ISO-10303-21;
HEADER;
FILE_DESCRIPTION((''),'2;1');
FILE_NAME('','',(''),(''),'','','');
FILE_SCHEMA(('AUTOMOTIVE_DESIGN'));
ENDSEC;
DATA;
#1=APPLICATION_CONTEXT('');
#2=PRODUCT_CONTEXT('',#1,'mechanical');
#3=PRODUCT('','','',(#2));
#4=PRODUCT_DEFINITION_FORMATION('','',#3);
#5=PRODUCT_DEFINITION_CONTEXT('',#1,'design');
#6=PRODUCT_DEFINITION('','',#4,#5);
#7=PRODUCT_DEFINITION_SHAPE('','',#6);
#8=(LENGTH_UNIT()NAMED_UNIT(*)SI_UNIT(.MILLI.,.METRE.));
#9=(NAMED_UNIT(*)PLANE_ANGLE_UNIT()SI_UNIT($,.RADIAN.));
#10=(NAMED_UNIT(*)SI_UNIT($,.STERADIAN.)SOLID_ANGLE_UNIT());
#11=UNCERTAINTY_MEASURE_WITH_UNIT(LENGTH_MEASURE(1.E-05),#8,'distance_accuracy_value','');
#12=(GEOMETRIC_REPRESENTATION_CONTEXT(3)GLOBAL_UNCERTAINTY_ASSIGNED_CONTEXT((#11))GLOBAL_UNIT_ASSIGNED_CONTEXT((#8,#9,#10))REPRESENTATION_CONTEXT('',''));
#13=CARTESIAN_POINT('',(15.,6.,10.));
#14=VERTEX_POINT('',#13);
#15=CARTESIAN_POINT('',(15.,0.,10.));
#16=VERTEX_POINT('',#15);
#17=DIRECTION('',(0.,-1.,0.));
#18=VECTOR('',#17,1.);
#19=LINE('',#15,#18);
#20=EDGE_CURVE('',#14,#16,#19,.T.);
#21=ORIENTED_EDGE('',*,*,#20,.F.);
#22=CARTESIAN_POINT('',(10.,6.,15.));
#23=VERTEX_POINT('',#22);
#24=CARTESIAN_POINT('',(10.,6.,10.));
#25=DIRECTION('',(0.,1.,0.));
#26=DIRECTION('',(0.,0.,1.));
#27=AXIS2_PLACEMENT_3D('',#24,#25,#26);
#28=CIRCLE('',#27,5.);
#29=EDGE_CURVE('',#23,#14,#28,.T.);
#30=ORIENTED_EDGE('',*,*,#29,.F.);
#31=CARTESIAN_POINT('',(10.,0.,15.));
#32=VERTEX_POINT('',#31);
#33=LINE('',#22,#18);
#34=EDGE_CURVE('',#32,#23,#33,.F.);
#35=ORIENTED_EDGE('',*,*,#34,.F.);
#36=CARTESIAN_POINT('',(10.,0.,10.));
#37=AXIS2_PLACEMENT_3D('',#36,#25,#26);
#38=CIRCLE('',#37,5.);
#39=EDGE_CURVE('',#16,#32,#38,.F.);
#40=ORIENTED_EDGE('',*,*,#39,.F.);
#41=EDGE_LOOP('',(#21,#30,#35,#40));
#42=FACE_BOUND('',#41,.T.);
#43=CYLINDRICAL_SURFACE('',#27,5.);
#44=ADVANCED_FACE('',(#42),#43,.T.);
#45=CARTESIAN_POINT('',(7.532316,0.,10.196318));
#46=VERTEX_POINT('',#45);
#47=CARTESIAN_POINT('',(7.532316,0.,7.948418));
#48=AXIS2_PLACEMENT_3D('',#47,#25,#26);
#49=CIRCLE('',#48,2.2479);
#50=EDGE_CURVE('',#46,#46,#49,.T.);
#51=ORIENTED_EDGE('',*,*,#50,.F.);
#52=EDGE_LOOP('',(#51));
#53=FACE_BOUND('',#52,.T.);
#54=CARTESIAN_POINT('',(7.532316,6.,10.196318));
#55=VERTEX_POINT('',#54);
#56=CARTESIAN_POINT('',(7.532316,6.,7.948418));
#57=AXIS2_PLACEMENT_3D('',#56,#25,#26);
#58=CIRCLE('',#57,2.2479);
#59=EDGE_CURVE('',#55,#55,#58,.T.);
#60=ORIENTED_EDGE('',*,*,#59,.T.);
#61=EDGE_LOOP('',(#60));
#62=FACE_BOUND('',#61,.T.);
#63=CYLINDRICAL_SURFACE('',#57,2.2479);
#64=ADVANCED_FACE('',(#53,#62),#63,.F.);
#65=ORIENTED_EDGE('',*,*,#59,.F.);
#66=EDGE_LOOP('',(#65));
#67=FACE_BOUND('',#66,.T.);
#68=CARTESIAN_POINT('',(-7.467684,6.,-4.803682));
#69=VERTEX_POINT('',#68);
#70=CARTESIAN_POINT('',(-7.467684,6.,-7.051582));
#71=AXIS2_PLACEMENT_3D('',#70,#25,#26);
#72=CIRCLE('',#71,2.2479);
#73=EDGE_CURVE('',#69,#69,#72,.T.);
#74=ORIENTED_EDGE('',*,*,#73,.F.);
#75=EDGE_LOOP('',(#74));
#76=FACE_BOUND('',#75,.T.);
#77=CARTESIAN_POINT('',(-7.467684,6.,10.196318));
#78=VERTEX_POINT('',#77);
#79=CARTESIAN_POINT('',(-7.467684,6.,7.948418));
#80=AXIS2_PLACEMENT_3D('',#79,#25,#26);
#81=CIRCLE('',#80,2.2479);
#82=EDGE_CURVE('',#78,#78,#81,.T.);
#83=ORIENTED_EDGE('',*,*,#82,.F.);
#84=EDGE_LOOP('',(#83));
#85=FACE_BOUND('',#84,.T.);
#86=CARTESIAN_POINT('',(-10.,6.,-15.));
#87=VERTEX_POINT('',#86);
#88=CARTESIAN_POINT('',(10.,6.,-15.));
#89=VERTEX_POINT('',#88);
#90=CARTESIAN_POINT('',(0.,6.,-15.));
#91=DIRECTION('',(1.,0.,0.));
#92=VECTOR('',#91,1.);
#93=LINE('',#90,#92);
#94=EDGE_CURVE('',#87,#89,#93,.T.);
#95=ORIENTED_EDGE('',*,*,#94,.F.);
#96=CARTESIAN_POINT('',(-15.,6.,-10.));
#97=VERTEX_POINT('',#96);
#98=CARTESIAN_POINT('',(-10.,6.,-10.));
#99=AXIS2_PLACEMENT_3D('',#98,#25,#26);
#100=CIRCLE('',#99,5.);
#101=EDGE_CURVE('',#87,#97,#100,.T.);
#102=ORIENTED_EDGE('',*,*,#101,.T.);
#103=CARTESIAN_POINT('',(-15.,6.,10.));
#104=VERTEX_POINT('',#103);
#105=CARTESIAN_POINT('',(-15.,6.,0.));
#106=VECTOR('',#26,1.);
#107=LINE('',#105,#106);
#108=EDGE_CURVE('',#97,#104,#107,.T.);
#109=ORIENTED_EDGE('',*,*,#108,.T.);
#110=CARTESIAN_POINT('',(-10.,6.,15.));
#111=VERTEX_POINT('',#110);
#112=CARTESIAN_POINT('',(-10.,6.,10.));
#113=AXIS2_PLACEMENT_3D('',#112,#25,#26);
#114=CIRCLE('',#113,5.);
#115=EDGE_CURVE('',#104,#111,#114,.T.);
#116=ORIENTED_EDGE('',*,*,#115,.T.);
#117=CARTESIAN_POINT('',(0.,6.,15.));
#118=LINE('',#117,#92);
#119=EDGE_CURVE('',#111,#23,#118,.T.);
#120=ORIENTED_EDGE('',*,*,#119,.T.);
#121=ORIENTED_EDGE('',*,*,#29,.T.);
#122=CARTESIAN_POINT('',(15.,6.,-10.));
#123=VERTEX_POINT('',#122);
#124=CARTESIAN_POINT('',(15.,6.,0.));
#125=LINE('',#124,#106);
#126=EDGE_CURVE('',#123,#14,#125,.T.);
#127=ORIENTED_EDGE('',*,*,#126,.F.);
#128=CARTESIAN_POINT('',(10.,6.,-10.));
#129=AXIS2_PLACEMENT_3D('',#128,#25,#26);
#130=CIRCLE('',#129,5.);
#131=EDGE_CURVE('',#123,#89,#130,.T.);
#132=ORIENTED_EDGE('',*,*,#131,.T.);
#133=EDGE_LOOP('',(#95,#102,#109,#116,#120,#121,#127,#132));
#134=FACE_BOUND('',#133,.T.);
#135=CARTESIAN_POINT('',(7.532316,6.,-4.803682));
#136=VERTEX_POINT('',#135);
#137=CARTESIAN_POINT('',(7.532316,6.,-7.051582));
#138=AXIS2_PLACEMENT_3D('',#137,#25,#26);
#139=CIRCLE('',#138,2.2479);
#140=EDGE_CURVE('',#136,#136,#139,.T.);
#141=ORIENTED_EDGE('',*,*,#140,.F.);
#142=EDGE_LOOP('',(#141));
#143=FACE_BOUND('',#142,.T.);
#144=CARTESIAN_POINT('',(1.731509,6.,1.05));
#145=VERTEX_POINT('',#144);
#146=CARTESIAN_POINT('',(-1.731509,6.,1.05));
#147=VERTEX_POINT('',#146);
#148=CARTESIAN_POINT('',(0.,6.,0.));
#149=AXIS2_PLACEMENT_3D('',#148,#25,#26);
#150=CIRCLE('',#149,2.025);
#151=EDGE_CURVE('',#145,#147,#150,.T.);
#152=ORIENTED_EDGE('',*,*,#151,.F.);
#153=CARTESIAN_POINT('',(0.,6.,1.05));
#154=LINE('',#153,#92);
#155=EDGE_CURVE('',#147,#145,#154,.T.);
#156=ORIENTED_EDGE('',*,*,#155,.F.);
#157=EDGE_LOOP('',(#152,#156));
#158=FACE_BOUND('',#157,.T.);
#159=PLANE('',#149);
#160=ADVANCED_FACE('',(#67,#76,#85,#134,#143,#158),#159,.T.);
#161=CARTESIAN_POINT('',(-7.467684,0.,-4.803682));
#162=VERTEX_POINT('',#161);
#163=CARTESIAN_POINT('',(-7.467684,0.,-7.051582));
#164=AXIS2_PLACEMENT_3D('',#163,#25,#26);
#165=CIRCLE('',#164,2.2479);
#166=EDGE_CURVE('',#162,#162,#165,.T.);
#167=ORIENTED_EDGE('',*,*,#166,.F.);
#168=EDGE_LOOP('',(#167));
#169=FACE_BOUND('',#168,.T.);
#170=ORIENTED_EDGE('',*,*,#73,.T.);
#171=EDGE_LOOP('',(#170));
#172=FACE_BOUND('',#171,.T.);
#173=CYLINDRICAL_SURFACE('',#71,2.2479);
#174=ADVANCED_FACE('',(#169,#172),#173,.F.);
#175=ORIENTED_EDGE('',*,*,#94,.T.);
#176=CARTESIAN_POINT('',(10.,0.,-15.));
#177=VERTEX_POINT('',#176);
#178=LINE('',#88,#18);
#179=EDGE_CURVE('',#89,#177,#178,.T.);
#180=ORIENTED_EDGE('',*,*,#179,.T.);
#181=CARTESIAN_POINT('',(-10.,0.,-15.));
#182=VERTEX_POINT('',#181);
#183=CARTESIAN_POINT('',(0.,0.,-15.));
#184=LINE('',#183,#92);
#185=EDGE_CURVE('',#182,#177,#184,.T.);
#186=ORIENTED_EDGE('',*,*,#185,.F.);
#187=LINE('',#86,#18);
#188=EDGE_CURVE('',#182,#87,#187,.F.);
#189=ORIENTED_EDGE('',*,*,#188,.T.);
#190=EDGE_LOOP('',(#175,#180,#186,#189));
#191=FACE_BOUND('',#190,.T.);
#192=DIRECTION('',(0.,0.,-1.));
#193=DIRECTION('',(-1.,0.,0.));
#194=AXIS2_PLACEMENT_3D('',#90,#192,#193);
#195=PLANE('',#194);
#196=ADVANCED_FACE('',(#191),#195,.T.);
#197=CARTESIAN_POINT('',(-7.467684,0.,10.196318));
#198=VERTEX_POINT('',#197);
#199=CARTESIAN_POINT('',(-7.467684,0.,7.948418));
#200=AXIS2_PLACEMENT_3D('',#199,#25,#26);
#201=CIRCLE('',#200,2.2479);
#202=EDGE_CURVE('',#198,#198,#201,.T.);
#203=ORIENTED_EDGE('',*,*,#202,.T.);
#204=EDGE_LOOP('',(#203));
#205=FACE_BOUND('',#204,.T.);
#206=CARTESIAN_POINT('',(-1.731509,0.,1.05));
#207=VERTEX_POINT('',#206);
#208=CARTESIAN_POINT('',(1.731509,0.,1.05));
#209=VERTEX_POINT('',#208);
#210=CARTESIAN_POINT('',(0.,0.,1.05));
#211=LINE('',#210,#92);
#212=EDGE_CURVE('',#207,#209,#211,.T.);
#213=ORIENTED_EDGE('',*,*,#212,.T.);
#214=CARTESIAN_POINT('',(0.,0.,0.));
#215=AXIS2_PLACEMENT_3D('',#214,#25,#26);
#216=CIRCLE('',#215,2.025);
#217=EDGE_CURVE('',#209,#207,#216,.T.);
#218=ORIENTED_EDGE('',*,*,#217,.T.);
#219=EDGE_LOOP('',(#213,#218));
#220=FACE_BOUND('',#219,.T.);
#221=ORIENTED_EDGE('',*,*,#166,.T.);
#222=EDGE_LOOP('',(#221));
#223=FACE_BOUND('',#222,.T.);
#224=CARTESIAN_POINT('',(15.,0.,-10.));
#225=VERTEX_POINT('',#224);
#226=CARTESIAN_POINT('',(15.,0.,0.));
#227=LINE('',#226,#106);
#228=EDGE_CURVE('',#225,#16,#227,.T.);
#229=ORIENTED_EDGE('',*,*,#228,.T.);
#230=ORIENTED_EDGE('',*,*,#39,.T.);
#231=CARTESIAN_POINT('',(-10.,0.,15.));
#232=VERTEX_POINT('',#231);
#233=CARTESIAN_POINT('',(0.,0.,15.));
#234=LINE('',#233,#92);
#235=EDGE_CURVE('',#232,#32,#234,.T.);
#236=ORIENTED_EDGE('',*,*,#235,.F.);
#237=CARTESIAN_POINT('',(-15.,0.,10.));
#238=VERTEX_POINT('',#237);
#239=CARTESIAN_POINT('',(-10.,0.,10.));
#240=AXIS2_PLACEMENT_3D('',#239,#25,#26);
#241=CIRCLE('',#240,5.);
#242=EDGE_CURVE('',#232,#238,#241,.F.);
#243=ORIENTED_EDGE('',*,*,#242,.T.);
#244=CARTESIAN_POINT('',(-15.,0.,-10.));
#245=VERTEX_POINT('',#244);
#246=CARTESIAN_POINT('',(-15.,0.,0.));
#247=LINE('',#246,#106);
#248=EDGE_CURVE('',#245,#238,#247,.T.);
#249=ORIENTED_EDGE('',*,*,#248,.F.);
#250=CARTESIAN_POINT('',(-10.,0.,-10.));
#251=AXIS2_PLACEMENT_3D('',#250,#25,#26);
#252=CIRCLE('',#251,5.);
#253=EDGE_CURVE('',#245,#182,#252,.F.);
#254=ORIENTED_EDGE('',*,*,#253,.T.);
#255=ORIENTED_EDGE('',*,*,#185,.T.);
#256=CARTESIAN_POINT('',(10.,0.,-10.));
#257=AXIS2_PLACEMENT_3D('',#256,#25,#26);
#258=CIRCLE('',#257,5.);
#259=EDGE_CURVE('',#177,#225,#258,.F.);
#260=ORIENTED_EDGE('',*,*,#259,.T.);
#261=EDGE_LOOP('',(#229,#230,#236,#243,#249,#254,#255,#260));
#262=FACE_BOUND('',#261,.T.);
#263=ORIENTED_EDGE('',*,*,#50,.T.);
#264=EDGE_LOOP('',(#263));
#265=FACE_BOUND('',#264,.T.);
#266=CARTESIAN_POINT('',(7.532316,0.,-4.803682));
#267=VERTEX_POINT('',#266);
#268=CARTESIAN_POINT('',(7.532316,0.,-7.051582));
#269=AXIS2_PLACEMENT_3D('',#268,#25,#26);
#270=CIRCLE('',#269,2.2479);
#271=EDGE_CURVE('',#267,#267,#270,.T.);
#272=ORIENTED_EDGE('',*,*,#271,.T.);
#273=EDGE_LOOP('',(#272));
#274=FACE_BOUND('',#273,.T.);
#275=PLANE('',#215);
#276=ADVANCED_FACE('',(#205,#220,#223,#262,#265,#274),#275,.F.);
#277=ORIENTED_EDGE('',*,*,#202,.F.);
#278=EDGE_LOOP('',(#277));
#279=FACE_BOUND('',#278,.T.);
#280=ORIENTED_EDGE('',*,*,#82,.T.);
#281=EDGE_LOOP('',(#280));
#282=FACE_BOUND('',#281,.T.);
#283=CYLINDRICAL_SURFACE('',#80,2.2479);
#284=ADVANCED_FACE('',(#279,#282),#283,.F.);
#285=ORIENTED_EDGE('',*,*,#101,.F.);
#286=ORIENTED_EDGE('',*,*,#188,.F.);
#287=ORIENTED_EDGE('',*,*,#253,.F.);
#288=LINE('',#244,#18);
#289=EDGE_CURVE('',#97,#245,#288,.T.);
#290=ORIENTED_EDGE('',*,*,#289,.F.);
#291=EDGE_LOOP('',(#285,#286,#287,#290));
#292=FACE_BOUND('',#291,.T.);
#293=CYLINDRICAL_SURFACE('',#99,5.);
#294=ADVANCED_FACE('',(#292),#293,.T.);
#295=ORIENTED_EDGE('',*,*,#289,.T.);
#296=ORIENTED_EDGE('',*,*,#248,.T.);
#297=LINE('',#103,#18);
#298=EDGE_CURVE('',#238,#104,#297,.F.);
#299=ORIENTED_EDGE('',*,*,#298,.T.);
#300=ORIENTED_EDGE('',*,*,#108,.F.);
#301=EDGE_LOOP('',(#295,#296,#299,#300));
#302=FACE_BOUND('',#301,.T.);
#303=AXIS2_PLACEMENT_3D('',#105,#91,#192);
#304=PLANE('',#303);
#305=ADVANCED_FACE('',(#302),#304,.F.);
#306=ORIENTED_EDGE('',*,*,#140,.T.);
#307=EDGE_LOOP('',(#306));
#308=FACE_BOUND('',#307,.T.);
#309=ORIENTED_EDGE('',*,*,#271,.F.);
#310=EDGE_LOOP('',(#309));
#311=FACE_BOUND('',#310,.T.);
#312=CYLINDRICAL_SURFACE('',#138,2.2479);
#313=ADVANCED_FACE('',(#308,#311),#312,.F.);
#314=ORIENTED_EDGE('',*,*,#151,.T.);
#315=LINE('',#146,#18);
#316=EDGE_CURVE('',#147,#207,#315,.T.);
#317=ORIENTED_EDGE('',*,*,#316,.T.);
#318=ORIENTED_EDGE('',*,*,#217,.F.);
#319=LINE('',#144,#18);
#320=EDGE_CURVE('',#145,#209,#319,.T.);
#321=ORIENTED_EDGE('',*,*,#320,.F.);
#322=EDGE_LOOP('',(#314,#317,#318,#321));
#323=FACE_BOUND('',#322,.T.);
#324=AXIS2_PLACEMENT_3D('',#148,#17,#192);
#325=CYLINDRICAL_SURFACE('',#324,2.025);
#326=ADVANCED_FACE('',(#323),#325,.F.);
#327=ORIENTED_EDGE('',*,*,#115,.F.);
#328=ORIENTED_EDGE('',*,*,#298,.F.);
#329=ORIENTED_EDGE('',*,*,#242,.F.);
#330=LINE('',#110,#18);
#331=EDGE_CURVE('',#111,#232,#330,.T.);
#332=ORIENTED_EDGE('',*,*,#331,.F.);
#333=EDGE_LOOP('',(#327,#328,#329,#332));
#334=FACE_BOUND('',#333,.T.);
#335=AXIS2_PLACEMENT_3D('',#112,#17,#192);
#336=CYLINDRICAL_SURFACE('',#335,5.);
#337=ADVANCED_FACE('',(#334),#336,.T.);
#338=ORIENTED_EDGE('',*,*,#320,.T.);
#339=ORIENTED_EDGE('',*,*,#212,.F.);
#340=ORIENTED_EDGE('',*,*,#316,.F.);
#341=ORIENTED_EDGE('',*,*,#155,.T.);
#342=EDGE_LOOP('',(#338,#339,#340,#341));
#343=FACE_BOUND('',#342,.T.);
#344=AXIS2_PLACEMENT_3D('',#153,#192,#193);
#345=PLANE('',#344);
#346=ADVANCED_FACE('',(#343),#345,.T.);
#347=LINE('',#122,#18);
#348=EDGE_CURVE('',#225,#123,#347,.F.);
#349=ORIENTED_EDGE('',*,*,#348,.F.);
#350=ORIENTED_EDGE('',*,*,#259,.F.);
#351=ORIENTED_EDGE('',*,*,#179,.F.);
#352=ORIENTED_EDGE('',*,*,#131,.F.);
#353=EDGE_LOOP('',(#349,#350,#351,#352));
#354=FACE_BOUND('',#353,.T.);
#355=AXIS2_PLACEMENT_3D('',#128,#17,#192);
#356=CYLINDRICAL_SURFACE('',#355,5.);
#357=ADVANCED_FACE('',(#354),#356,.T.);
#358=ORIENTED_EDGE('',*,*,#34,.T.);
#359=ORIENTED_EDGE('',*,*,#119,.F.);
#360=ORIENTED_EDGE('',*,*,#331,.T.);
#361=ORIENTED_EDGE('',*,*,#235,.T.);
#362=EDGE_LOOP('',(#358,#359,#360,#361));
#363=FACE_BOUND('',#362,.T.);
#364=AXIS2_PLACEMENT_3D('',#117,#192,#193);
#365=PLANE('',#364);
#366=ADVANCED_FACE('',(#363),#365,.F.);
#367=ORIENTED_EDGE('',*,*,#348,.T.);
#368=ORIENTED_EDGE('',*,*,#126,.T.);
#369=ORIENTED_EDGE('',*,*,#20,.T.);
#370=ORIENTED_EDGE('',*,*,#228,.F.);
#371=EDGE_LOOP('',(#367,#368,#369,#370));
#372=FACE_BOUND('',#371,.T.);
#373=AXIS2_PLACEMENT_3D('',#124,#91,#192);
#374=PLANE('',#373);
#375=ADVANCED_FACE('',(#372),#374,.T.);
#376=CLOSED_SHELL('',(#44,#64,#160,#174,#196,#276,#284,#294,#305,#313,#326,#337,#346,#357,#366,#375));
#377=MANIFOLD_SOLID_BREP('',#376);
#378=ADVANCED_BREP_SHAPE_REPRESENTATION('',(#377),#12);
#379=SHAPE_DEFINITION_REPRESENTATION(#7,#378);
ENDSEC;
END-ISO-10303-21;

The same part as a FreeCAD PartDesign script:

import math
import FreeCAD as App
import Part
import Sketcher
from FreeCAD import Vector


def edges_at(feature, points):
    """Names of the edges that pass closest to the given points."""
    edges = feature.Shape.Edges
    near = lambda p: min(range(len(edges)), key=lambda i: edges[i].distToShape(Part.Vertex(*p))[0])
    return sorted({f"Edge{near(p) + 1}" for p in points})

doc = App.newDocument("Part")
body = doc.addObject("PartDesign::Body", "Body")

# Sketch on XZ plane
sketch1 = doc.addObject("Sketcher::SketchObject", "Sketch")
body.addObject(sketch1)
sketch1.AttachmentSupport = (doc.XZ_Plane, [""])
sketch1.MapMode = "FlatFace"
sketch1.addGeometry([
    Part.LineSegment(Vector(-15, -15, 0), Vector(-15, 15, 0)),  # 0
    Part.LineSegment(Vector(-15, 15, 0), Vector(15, 15, 0)),  # 1
    Part.LineSegment(Vector(15, 15, 0), Vector(15, -15, 0)),  # 2
    Part.LineSegment(Vector(15, -15, 0), Vector(-15, -15, 0)),  # 3
    Part.ArcOfCircle(Part.Circle(Vector(0, 0, 0), Vector(0, 0, 1), 2.025), math.radians(148.767071), math.radians(391.232929)),  # 4
    Part.LineSegment(Vector(1.731509, 1.05, 0), Vector(-1.731509, 1.05, 0)),  # 5
], False)
sketch1.addConstraint([
    Sketcher.Constraint("Coincident", 0, 2, 1, 1),
    Sketcher.Constraint("Coincident", 1, 2, 2, 1),
    Sketcher.Constraint("Coincident", 2, 2, 3, 1),
    Sketcher.Constraint("Coincident", 3, 2, 0, 1),
    Sketcher.Constraint("Coincident", 4, 1, 5, 2),
    Sketcher.Constraint("Coincident", 5, 1, 4, 2),
    Sketcher.Constraint("Vertical", 0),
    Sketcher.Constraint("Horizontal", 1),
    Sketcher.Constraint("Vertical", 2),
    Sketcher.Constraint("Horizontal", 3),
    Sketcher.Constraint("Horizontal", 5),
    Sketcher.Constraint("Coincident", 4, 3, -1, 1),
    Sketcher.Constraint("Symmetric", 0, 2, 2, 2, -1, 1),
    Sketcher.Constraint("Equal", 3, 0),
    Sketcher.Constraint("DistanceX", 1, 1, 1, 2, 30.0),
    Sketcher.Constraint("Radius", 4, 2.025),
    Sketcher.Constraint("DistanceY", -1, 1, 4, 1, 1.05),
])
pad1 = doc.addObject("PartDesign::Pad", "Pad")
body.addObject(pad1)
pad1.Profile = sketch1
pad1.Length = 6
pad1.Reversed = True
doc.recompute()

fillet = doc.addObject("PartDesign::Fillet", "Fillet")
body.addObject(fillet)
fillet.Base = (pad1, edges_at(pad1, [
    (15, 3, 15),
    (-15, 3, 15),
    (-15, 3, -15),
    (15, 3, -15),
]))
fillet.Radius = 5

# Sketch on XZ plane
sketch2 = doc.addObject("Sketcher::SketchObject", "Sketch001")
body.addObject(sketch2)
sketch2.AttachmentSupport = (doc.XZ_Plane, [""])
sketch2.MapMode = "FlatFace"
sketch2.AttachmentOffset = App.Placement(Vector(0, 0, -6), App.Rotation())
sketch2.addGeometry([
    Part.Circle(Vector(-7.467684, -7.051582, 0), Vector(0, 0, 1), 2.2479),
    Part.Circle(Vector(7.532316, -7.051582, 0), Vector(0, 0, 1), 2.2479),
    Part.Circle(Vector(-7.467684, 7.948418, 0), Vector(0, 0, 1), 2.2479),
    Part.Circle(Vector(7.532316, 7.948418, 0), Vector(0, 0, 1), 2.2479),
], False)
sketch2.addConstraint([
    Sketcher.Constraint("Equal", 0, 1),
    Sketcher.Constraint("Equal", 1, 2),
    Sketcher.Constraint("Equal", 2, 3),
    Sketcher.Constraint("Horizontal", 0, 3, 1, 3),
    Sketcher.Constraint("Horizontal", 2, 3, 3, 3),
    Sketcher.Constraint("Vertical", 0, 3, 2, 3),
    Sketcher.Constraint("Vertical", 1, 3, 3, 3),
    Sketcher.Constraint("DistanceX", 0, 3, 1, 3, 15.0),
    Sketcher.Constraint("DistanceY", 0, 3, 2, 3, 15.0),
    Sketcher.Constraint("Diameter", 0, 4.4958),
    Sketcher.Constraint("DistanceY", 0, 3, -1, 1, 7.051582),
    Sketcher.Constraint("DistanceX", 0, 3, -1, 1, 7.467684),
])
doc.recompute()
hole = doc.addObject("PartDesign::Hole", "Hole")
body.addObject(hole)
hole.Profile = sketch2
hole.ThreadType = "None"
hole.Diameter = 4.4958
hole.DepthType = "ThroughAll"
hole.Reversed = True

doc.recompute()
